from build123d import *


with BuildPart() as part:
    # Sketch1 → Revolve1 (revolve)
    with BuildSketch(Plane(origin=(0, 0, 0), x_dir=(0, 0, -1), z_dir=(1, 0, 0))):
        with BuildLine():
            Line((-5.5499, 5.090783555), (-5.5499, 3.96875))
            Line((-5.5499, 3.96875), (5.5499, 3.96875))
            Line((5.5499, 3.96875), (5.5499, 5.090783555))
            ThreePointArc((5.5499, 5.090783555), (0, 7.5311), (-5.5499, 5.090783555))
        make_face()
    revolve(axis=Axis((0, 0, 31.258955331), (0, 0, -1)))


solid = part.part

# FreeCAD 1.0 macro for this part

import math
import FreeCAD as App
import Part
import Sketcher
Q = App.Units.Quantity

doc = App.newDocument("Part")
body = doc.addObject("PartDesign::Body", "Body")

sketch1 = body.newObject("Sketcher::SketchObject", "Sketch")
sketch1.AttachmentSupport = (doc.getObject("YZ_Plane"), [""])
sketch1.MapMode = "FlatFace"
sketch1.addGeometry(Part.LineSegment(App.Vector(5.1, 5.5, 0), App.Vector(4, 5.5, 0)), False)
sketch1.addGeometry(Part.LineSegment(App.Vector(4, 5.5, 0), App.Vector(4, -5.5, 0)), False)
sketch1.addGeometry(Part.LineSegment(App.Vector(4, -5.5, 0), App.Vector(5.1, -5.5, 0)), False)
sketch1.addGeometry(Part.ArcOfCircle(Part.Circle(App.Vector(0, 0, 0), App.Vector(0, 0, 1), 7.5), math.radians(-47), math.radians(47)), False)
sketch1.addConstraint(Sketcher.Constraint("Coincident", 0, 2, 1, 1))
sketch1.addConstraint(Sketcher.Constraint("Coincident", 1, 2, 2, 1))
sketch1.addConstraint(Sketcher.Constraint("Coincident", 2, 2, 3, 1))
sketch1.addConstraint(Sketcher.Constraint("Coincident", 3, 2, 0, 1))
sketch1.addConstraint(Sketcher.Constraint("Horizontal", 0))
sketch1.addConstraint(Sketcher.Constraint("Vertical", 1))
sketch1.addConstraint(Sketcher.Constraint("Horizontal", 2))
sketch1.addConstraint(Sketcher.Constraint("Coincident", 3, 3, -1, 1))
sketch1.addConstraint(Sketcher.Constraint("Vertical", 2, 2, 3, 2))
sketch1.addConstraint(Sketcher.Constraint("Radius", 3, Q("0.2965 in")))
sketch1.addConstraint(Sketcher.Constraint("DistanceY", 1, 2, 1, 1, Q("0.437 in")))
sketch1.addConstraint(Sketcher.Constraint("DistanceX", -1, 1, 0, 2, Q("0.15625 in")))
revolution = body.newObject("PartDesign::Revolution", "Revolution")
revolution.Profile = sketch1
revolution.ReferenceAxis = (sketch1, ["V_Axis"])
revolution.Angle = 360

doc.recompute()
